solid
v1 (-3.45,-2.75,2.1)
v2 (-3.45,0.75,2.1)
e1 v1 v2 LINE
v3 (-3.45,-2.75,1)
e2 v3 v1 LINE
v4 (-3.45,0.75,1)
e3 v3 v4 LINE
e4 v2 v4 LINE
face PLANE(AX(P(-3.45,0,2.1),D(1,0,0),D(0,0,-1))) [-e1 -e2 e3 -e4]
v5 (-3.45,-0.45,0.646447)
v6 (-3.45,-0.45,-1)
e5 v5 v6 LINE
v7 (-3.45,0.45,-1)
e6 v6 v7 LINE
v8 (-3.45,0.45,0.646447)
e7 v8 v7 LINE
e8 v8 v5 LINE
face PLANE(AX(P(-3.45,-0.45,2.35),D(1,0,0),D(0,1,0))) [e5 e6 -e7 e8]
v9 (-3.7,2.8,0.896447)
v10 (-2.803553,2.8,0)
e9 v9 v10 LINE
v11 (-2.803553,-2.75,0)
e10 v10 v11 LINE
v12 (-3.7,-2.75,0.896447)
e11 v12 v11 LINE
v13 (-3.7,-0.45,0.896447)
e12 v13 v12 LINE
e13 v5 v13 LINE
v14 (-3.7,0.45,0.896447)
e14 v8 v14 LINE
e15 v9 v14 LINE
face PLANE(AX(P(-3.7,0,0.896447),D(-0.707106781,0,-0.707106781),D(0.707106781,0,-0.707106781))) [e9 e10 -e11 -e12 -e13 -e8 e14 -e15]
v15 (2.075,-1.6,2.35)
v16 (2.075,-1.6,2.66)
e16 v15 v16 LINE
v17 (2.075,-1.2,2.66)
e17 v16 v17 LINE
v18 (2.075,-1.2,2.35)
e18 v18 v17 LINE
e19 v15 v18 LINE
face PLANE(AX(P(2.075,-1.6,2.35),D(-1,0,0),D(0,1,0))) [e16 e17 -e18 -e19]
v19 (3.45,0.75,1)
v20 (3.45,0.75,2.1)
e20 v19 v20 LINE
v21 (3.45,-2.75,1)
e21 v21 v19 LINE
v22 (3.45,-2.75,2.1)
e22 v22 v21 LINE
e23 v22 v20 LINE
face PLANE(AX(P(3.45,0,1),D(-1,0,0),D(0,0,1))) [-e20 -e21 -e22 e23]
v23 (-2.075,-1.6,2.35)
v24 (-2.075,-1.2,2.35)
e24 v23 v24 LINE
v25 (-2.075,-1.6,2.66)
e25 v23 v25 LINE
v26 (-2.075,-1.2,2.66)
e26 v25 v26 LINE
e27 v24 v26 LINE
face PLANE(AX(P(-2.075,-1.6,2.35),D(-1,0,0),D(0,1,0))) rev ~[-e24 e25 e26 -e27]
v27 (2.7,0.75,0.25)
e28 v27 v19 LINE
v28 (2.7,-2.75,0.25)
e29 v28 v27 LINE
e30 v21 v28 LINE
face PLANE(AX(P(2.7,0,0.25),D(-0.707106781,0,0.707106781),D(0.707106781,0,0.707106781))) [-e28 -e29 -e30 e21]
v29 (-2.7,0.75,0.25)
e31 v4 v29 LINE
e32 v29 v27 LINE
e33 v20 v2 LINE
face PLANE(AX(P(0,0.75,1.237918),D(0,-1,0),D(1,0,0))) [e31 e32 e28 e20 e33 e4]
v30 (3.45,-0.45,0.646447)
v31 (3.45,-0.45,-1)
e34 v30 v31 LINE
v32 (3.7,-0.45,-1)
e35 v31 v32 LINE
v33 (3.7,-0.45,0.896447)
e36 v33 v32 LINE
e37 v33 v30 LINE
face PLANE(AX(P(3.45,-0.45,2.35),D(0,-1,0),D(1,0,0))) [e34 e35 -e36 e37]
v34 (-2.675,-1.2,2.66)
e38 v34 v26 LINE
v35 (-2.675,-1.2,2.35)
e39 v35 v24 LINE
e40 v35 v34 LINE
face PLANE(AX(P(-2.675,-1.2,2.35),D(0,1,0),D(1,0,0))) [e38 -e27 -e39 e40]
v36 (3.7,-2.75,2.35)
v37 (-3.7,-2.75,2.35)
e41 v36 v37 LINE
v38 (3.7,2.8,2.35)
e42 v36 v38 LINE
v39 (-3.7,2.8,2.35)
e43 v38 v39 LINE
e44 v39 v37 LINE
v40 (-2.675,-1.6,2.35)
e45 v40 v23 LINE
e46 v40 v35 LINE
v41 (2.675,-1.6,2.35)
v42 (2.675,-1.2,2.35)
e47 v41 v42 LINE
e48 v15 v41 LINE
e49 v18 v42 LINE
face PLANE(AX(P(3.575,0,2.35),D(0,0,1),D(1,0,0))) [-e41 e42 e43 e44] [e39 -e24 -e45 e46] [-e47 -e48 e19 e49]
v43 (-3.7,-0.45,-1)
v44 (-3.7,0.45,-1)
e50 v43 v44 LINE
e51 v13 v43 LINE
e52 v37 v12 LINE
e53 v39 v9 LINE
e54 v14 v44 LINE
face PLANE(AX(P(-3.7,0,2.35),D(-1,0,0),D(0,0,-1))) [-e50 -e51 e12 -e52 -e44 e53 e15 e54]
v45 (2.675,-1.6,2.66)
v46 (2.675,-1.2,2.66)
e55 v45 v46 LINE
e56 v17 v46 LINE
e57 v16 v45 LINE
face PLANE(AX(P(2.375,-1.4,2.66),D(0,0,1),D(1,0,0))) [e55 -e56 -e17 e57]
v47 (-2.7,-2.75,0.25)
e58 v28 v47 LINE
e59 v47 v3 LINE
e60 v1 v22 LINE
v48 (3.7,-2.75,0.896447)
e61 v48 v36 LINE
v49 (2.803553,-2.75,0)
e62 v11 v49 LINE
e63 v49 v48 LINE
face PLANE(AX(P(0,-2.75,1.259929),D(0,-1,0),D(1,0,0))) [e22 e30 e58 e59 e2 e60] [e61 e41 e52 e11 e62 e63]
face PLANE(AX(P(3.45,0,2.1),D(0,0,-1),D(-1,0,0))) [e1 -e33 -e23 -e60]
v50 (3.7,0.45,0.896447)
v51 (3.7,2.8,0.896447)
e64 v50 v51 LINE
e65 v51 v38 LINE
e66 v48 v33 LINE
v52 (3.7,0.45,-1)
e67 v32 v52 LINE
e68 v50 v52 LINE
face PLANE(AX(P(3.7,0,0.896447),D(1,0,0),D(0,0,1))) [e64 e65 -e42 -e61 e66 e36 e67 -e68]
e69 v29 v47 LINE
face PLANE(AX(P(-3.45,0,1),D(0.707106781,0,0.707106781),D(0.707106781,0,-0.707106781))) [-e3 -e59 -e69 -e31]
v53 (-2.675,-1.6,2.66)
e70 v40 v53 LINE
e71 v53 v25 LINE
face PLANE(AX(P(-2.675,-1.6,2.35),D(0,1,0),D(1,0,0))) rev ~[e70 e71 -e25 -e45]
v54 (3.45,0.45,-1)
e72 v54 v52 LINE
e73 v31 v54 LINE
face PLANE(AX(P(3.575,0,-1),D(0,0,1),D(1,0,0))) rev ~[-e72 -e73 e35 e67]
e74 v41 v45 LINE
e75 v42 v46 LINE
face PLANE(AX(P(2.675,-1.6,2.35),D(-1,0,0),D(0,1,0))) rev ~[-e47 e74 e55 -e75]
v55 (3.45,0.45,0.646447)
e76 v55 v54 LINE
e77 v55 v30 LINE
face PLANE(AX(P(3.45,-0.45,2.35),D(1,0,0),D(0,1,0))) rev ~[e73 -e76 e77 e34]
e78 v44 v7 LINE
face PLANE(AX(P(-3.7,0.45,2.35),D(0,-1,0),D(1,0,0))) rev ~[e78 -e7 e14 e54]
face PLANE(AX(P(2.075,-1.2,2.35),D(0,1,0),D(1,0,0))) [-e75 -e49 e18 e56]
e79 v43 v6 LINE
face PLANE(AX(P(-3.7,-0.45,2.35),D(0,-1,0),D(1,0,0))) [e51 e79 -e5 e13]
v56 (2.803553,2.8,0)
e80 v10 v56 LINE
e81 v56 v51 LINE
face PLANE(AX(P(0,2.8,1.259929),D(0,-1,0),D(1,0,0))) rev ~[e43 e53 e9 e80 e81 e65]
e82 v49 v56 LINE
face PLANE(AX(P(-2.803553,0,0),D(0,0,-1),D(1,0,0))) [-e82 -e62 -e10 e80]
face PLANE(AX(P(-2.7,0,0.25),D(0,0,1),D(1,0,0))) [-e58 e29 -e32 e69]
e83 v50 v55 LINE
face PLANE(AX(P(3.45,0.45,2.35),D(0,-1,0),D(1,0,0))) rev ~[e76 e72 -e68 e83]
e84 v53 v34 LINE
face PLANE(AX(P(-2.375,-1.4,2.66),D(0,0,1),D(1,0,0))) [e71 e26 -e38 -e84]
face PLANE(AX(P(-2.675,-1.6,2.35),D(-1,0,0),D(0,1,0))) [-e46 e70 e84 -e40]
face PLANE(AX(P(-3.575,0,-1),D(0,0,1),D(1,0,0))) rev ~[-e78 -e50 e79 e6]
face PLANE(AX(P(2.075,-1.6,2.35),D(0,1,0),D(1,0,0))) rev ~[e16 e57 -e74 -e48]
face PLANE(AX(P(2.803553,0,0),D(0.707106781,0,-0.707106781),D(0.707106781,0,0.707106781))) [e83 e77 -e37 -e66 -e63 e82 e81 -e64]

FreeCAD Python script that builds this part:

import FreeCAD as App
import Part
import Sketcher
from FreeCAD import Vector
Q = App.Units.Quantity

doc = App.newDocument("Part")
params = doc.addObject("Spreadsheet::Sheet", "Params")
for row, (alias, value) in enumerate([
    ("sketch1_width", "7.4 mm"),
    ("pad1_length", "2.75 mm"),
    ("pad1_length2", "2.8 mm"),
    ("sketch2_height", "0.9 mm"),
    ("sketch2_width", "0.25 mm"),
    ("pad2_length", "3.35 mm"),
    ("sketch3_width", "5.4 mm"),
    ("sketch3_width2", "6.9 mm"),
    ("sketch3_height", "1.1 mm"),
    ("pocket1_length", "3.75 mm"),
    ("pocket1_length2", "0.75 mm"),
    ("sketch4_width", "0.6 mm"),
    ("sketch4_height", "0.4 mm"),
    ("pad3_length", "0.31 mm"),
], start=1):
    params.set(f"A{row}", alias)
    params.set(f"B{row}", "=" + value)
    params.setAlias(f"B{row}", alias)

body = doc.addObject("PartDesign::Body", "Body")

sketch1 = body.newObject("Sketcher::SketchObject", "Sketch")
sketch1.AttachmentSupport = (doc.getObject("XY_Plane"), [""])
sketch1.MapMode = "FlatFace"
sketch1.addGeometry(Part.LineSegment(Vector(3.7, 2.35, 0), Vector(-3.7, 2.35, 0)), False)
sketch1.addGeometry(Part.LineSegment(Vector(-3.7, 2.35, 0), Vector(-3.7, 0.896447, 0)), False)
sketch1.addGeometry(Part.LineSegment(Vector(-3.7, 0.896447, 0), Vector(-2.803553, 0, 0)), False)
sketch1.addGeometry(Part.LineSegment(Vector(-2.803553, 0, 0), Vector(2.803553, 0, 0)), False)
sketch1.addGeometry(Part.LineSegment(Vector(2.803553, 0, 0), Vector(3.7, 0.896447, 0)), False)
sketch1.addGeometry(Part.LineSegment(Vector(3.7, 0.896447, 0), Vector(3.7, 2.35, 0)), False)
sketch1.addConstraint(Sketcher.Constraint("Coincident", 0, 2, 1, 1))
sketch1.addConstraint(Sketcher.Constraint("Coincident", 1, 2, 2, 1))
sketch1.addConstraint(Sketcher.Constraint("Coincident", 2, 2, 3, 1))
sketch1.addConstraint(Sketcher.Constraint("Coincident", 3, 2, 4, 1))
sketch1.addConstraint(Sketcher.Constraint("Coincident", 4, 2, 5, 1))
sketch1.addConstraint(Sketcher.Constraint("Coincident", 5, 2, 0, 1))
sketch1.addConstraint(Sketcher.Constraint("Horizontal", 0))
sketch1.addConstraint(Sketcher.Constraint("Vertical", 1))
sketch1.addConstraint(Sketcher.Constraint("Horizontal", 3))
sketch1.addConstraint(Sketcher.Constraint("Vertical", 5))
sketch1.addConstraint(Sketcher.Constraint("Symmetric", 2, 2, 3, 2, -1, 1))
sketch1.addConstraint(Sketcher.Constraint("Symmetric", 1, 2, 4, 2, -2))
sketch1.addConstraint(Sketcher.Constraint("Perpendicular", 2, 4))
sketch1.addConstraint(Sketcher.Constraint("DistanceX", 0, 2, 0, 1, Q("7.4 mm")))
sketch1.addConstraint(Sketcher.Constraint("DistanceY", -1, 1, 0, 2, Q("2.35 mm")))
sketch1.addConstraint(Sketcher.Constraint("DistanceX", 3, 1, 3, 2, Q("5.607107 mm")))
sketch1.setExpression("Constraints[13]", "Params.sketch1_width")
pad1 = body.newObject("PartDesign::Pad", "Pad")
pad1.Profile = sketch1
pad1.Type = "TwoLengths"
pad1.setExpression("Length", "Params.pad1_length")
pad1.setExpression("Length2", "Params.pad1_length2")

sketch2 = body.newObject("Sketcher::SketchObject", "Sketch001")
sketch2.AttachmentSupport = (doc.getObject("XZ_Plane"), [""])
sketch2.MapMode = "FlatFace"
sketch2.AttachmentOffset = App.Placement(Vector(0, 0, -2.35), App.Rotation())
sketch2.addGeometry(Part.LineSegment(Vector(3.45, -0.45, 0), Vector(3.45, 0.45, 0)), False)
sketch2.addGeometry(Part.LineSegment(Vector(3.45, 0.45, 0), Vector(3.7, 0.45, 0)), False)
sketch2.addGeometry(Part.LineSegment(Vector(3.7, 0.45, 0), Vector(3.7, -0.45, 0)), False)
sketch2.addGeometry(Part.LineSegment(Vector(3.7, -0.45, 0), Vector(3.45, -0.45, 0)), False)
sketch2.addGeometry(Part.LineSegment(Vector(-3.7, -0.45, 0), Vector(-3.7, 0.45, 0)), False)
sketch2.addGeometry(Part.LineSegment(Vector(-3.7, 0.45, 0), Vector(-3.45, 0.45, 0)), False)
sketch2.addGeometry(Part.LineSegment(Vector(-3.45, 0.45, 0), Vector(-3.45, -0.45, 0)), False)
sketch2.addGeometry(Part.LineSegment(Vector(-3.45, -0.45, 0), Vector(-3.7, -0.45, 0)), False)
sketch2.addConstraint(Sketcher.Constraint("Coincident", 0, 2, 1, 1))
sketch2.addConstraint(Sketcher.Constraint("Coincident", 1, 2, 2, 1))
sketch2.addConstraint(Sketcher.Constraint("Coincident", 2, 2, 3, 1))
sketch2.addConstraint(Sketcher.Constraint("Coincident", 3, 2, 0, 1))
sketch2.addConstraint(Sketcher.Constraint("Coincident", 4, 2, 5, 1))
sketch2.addConstraint(Sketcher.Constraint("Coincident", 5, 2, 6, 1))
sketch2.addConstraint(Sketcher.Constraint("Coincident", 6, 2, 7, 1))
sketch2.addConstraint(Sketcher.Constraint("Coincident", 7, 2, 4, 1))
sketch2.addConstraint(Sketcher.Constraint("Vertical", 0))
sketch2.addConstraint(Sketcher.Constraint("Horizontal", 1))
sketch2.addConstraint(Sketcher.Constraint("Vertical", 2))
sketch2.addConstraint(Sketcher.Constraint("Horizontal", 3))
sketch2.addConstraint(Sketcher.Constraint("Vertical", 4))
sketch2.addConstraint(Sketcher.Constraint("Horizontal", 5))
sketch2.addConstraint(Sketcher.Constraint("Vertical", 6))
sketch2.addConstraint(Sketcher.Constraint("Horizontal", 7))
sketch2.addConstraint(Sketcher.Constraint("Symmetric", 2, 2, 4, 2, -1, 1))
sketch2.addConstraint(Sketcher.Constraint("Symmetric", 0, 2, 6, 2, -1, 1))
sketch2.addConstraint(Sketcher.Constraint("Horizontal", 1, 2, 4, 2))
sketch2.addConstraint(Sketcher.Constraint("DistanceY", 0, 1, 0, 2, Q("0.9 mm")))
sketch2.addConstraint(Sketcher.Constraint("DistanceX", 1, 1, 1, 2, Q("0.25 mm")))
sketch2.addConstraint(Sketcher.Constraint("DistanceX", -1, 1, 1, 2, Q("3.7 mm")))
sketch2.setExpression("Constraints[19]", "Params.sketch2_height")
sketch2.setExpression("Constraints[20]", "Params.sketch2_width")
pad2 = body.newObject("PartDesign::Pad", "Pad001")
pad2.Profile = sketch2
pad2.setExpression("Length", "Params.pad2_length")

sketch3 = body.newObject("Sketcher::SketchObject", "Sketch002")
sketch3.AttachmentSupport = (doc.getObject("XY_Plane"), [""])
sketch3.MapMode = "FlatFace"
sketch3.addGeometry(Part.LineSegment(Vector(-3.45, 1, 0), Vector(-2.7, 0.25, 0)), False)
sketch3.addGeometry(Part.LineSegment(Vector(-2.7, 0.25, 0), Vector(2.7, 0.25, 0)), False)
sketch3.addGeometry(Part.LineSegment(Vector(2.7, 0.25, 0), Vector(3.45, 1, 0)), False)
sketch3.addGeometry(Part.LineSegment(Vector(3.45, 1, 0), Vector(3.45, 2.1, 0)), False)
sketch3.addGeometry(Part.LineSegment(Vector(3.45, 2.1, 0), Vector(-3.45, 2.1, 0)), False)
sketch3.addGeometry(Part.LineSegment(Vector(-3.45, 2.1, 0), Vector(-3.45, 1, 0)), False)
sketch3.addConstraint(Sketcher.Constraint("Coincident", 0, 2, 1, 1))
sketch3.addConstraint(Sketcher.Constraint("Coincident", 1, 2, 2, 1))
sketch3.addConstraint(Sketcher.Constraint("Coincident", 2, 2, 3, 1))
sketch3.addConstraint(Sketcher.Constraint("Coincident", 3, 2, 4, 1))
sketch3.addConstraint(Sketcher.Constraint("Coincident", 4, 2, 5, 1))
sketch3.addConstraint(Sketcher.Constraint("Coincident", 5, 2, 0, 1))
sketch3.addConstraint(Sketcher.Constraint("Horizontal", 1))
sketch3.addConstraint(Sketcher.Constraint("Vertical", 3))
sketch3.addConstraint(Sketcher.Constraint("Horizontal", 4))
sketch3.addConstraint(Sketcher.Constraint("Vertical", 5))
sketch3.addConstraint(Sketcher.Constraint("Symmetric", 2, 2, 5, 2, -2))
sketch3.addConstraint(Sketcher.Constraint("Perpendicular", 0, 2))
sketch3.addConstraint(Sketcher.Constraint("Equal", 0, 2))
sketch3.addConstraint(Sketcher.Constraint("DistanceX", 1, 1, 1, 2, Q("5.4 mm")))
sketch3.addConstraint(Sketcher.Constraint("DistanceX", 4, 2, 4, 1, Q("6.9 mm")))
sketch3.addConstraint(Sketcher.Constraint("DistanceY", 3, 1, 3, 2, Q("1.1 mm")))
sketch3.addConstraint(Sketcher.Constraint("DistanceY", -1, 1, 2, 2, Q("1 mm")))
sketch3.setExpression("Constraints[13]", "Params.sketch3_width")
sketch3.setExpression("Constraints[14]", "Params.sketch3_width2")
sketch3.setExpression("Constraints[15]", "Params.sketch3_height")
pocket1 = body.newObject("PartDesign::Pocket", "Pocket")
pocket1.Profile = sketch3
pocket1.Type = "TwoLengths"
pocket1.setExpression("Length", "Params.pocket1_length")
pocket1.setExpression("Length2", "Params.pocket1_length2")
pocket1.Reversed = True

sketch4 = body.newObject("Sketcher::SketchObject", "Sketch003")
sketch4.AttachmentSupport = (doc.getObject("XZ_Plane"), [""])
sketch4.MapMode = "FlatFace"
sketch4.AttachmentOffset = App.Placement(Vector(0, 0, -2.35), App.Rotation())
sketch4.addGeometry(Part.LineSegment(Vector(-2.675, 1.2, 0), Vector(-2.675, 1.6, 0)), False)
sketch4.addGeometry(Part.LineSegment(Vector(-2.675, 1.6, 0), Vector(-2.075, 1.6, 0)), False)
sketch4.addGeometry(Part.LineSegment(Vector(-2.075, 1.6, 0), Vector(-2.075, 1.2, 0)), False)
sketch4.addGeometry(Part.LineSegment(Vector(-2.075, 1.2, 0), Vector(-2.675, 1.2, 0)), False)
sketch4.addGeometry(Part.LineSegment(Vector(2.075, 1.2, 0), Vector(2.075, 1.6, 0)), False)
sketch4.addGeometry(Part.LineSegment(Vector(2.075, 1.6, 0), Vector(2.675, 1.6, 0)), False)
sketch4.addGeometry(Part.LineSegment(Vector(2.675, 1.6, 0), Vector(2.675, 1.2, 0)), False)
sketch4.addGeometry(Part.LineSegment(Vector(2.675, 1.2, 0), Vector(2.075, 1.2, 0)), False)
sketch4.addConstraint(Sketcher.Constraint("Coincident", 0, 2, 1, 1))
sketch4.addConstraint(Sketcher.Constraint("Coincident", 1, 2, 2, 1))
sketch4.addConstraint(Sketcher.Constraint("Coincident", 2, 2, 3, 1))
sketch4.addConstraint(Sketcher.Constraint("Coincident", 3, 2, 0, 1))
sketch4.addConstraint(Sketcher.Constraint("Coincident", 4, 2, 5, 1))
sketch4.addConstraint(Sketcher.Constraint("Coincident", 5, 2, 6, 1))
sketch4.addConstraint(Sketcher.Constraint("Coincident", 6, 2, 7, 1))
sketch4.addConstraint(Sketcher.Constraint("Coincident", 7, 2, 4, 1))
sketch4.addConstraint(Sketcher.Constraint("Vertical", 0))
sketch4.addConstraint(Sketcher.Constraint("Horizontal", 1))
sketch4.addConstraint(Sketcher.Constraint("Vertical", 2))
sketch4.addConstraint(Sketcher.Constraint("Horizontal", 3))
sketch4.addConstraint(Sketcher.Constraint("Vertical", 4))
sketch4.addConstraint(Sketcher.Constraint("Horizontal", 5))
sketch4.addConstraint(Sketcher.Constraint("Vertical", 6))
sketch4.addConstraint(Sketcher.Constraint("Horizontal", 7))
sketch4.addConstraint(Sketcher.Constraint("Symmetric", 1, 2, 4, 2, -2))
sketch4.addConstraint(Sketcher.Constraint("Symmetric", 3, 2, 6, 2, -2))
sketch4.addConstraint(Sketcher.Constraint("DistanceX", 1, 1, 1, 2, Q("0.6 mm")))
sketch4.addConstraint(Sketcher.Constraint("DistanceY", 0, 1, 0, 2, Q("0.4 mm")))
sketch4.addConstraint(Sketcher.Constraint("DistanceY", -1, 1, 0, 2, Q("1.6 mm")))
sketch4.addConstraint(Sketcher.Constraint("DistanceX", 1, 2, 4, 2, Q("4.15 mm")))
sketch4.setExpression("Constraints[18]", "Params.sketch4_width")
sketch4.setExpression("Constraints[19]", "Params.sketch4_height")
pad3 = body.newObject("PartDesign::Pad", "Pad002")
pad3.Profile = sketch4
pad3.setExpression("Length", "Params.pad3_length")
pad3.Reversed = True
body2 = doc.addObject("PartDesign::Body", "Body001")
doc.recompute()

body.Placement = App.Placement(Vector(0, 0, 0), App.Rotation(Vector(1, 0, 0), 90))
boolean = body2.newObject("PartDesign::Boolean", "Boolean")
boolean.Type = "Fuse"
boolean.addObjects([body])

doc.recompute()
